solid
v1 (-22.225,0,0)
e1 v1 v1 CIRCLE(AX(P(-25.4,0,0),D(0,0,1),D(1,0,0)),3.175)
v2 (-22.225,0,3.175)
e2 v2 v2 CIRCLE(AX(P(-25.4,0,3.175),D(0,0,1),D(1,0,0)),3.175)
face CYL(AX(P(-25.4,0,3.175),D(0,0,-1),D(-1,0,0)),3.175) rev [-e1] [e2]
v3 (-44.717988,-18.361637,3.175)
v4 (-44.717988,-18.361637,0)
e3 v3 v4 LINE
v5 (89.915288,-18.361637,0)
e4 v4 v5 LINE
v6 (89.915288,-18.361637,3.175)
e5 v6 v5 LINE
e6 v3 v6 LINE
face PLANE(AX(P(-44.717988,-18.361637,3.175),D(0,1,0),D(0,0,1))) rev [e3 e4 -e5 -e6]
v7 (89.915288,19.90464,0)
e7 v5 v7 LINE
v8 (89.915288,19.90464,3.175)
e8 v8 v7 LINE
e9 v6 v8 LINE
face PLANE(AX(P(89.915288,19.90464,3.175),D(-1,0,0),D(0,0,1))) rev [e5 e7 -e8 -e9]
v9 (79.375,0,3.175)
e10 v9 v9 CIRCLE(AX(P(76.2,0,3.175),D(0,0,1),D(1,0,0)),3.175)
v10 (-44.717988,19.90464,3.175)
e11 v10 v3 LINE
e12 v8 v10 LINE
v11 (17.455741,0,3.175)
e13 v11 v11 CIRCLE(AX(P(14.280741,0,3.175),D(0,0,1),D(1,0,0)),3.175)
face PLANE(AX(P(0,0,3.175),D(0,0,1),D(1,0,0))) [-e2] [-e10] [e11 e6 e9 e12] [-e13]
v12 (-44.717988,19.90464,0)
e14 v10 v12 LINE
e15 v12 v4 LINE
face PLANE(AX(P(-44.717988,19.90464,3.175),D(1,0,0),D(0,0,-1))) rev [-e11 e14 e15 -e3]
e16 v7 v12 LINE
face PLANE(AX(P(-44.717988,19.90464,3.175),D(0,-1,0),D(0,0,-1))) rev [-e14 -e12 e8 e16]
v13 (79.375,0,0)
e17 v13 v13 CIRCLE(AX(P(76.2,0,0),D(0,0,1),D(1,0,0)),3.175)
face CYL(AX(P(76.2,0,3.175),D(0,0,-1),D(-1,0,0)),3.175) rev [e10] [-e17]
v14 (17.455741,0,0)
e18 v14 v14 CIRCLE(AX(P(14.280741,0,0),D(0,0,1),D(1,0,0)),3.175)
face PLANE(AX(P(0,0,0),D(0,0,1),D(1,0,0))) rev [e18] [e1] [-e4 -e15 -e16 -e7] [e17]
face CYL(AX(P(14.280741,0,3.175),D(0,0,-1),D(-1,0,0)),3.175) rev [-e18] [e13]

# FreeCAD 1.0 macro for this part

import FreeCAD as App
import Part
import Sketcher

V = App.Vector
Q = App.Units.Quantity

doc = App.newDocument("Part")
body = doc.addObject("PartDesign::Body", "Body")

# Sketch on XY plane
sketch1 = doc.addObject("Sketcher::SketchObject", "Sketch")
body.addObject(sketch1)
sketch1.AttachmentSupport = (doc.XY_Plane, [""])
sketch1.MapMode = "FlatFace"
sketch1.addGeometry([
    Part.LineSegment(V(-44.7, 19.9, 0), V(-44.7, -18.4, 0)),  # 0
    Part.LineSegment(V(-44.7, -18.4, 0), V(89.9, -18.4, 0)),  # 1
    Part.LineSegment(V(89.9, -18.4, 0), V(89.9, 19.9, 0)),  # 2
    Part.LineSegment(V(89.9, 19.9, 0), V(-44.7, 19.9, 0)),  # 3
    Part.Circle(V(-25.4, 0, 0), V(0, 0, 1), 3.2),  # 4
    Part.Circle(V(14.3, 0, 0), V(0, 0, 1), 3.2),  # 5
    Part.Circle(V(76.2, 0, 0), V(0, 0, 1), 3.2),  # 6
], False)
sketch1.addConstraint([
    Sketcher.Constraint("Coincident", 0, 2, 1, 1),
    Sketcher.Constraint("Coincident", 1, 2, 2, 1),
    Sketcher.Constraint("Coincident", 2, 2, 3, 1),
    Sketcher.Constraint("Coincident", 3, 2, 0, 1),
    Sketcher.Constraint("Vertical", 0),
    Sketcher.Constraint("Horizontal", 1),
    Sketcher.Constraint("Vertical", 2),
    Sketcher.Constraint("Horizontal", 3),
    Sketcher.Constraint("Equal", 4, 5),
    Sketcher.Constraint("Equal", 5, 6),
    Sketcher.Constraint("PointOnObject", 4, 3, -1),
    Sketcher.Constraint("PointOnObject", 5, 3, -1),
    Sketcher.Constraint("PointOnObject", 6, 3, -1),
    Sketcher.Constraint("Diameter", 4, Q("0.25 in")),
    Sketcher.Constraint("DistanceX", 4, 3, -1, 1, Q("1 in")),
    Sketcher.Constraint("DistanceX", -1, 1, 6, 3, Q("3 in")),
    Sketcher.Constraint("DistanceX", 1, 1, 1, 2, 134.633276),
    Sketcher.Constraint("DistanceY", 0, 2, 0, 1, 38.266278),
    Sketcher.Constraint("DistanceX", -1, 1, 5, 3, 14.280741),
    Sketcher.Constraint("DistanceX", 0, 2, -1, 1, 44.717988),
    Sketcher.Constraint("DistanceY", -1, 1, 2, 2, 19.90464),
])
pad1 = doc.addObject("PartDesign::Pad", "Pad")
body.addObject(pad1)
pad1.Profile = sketch1
pad1.Length = Q("0.125 in")

doc.recompute()
